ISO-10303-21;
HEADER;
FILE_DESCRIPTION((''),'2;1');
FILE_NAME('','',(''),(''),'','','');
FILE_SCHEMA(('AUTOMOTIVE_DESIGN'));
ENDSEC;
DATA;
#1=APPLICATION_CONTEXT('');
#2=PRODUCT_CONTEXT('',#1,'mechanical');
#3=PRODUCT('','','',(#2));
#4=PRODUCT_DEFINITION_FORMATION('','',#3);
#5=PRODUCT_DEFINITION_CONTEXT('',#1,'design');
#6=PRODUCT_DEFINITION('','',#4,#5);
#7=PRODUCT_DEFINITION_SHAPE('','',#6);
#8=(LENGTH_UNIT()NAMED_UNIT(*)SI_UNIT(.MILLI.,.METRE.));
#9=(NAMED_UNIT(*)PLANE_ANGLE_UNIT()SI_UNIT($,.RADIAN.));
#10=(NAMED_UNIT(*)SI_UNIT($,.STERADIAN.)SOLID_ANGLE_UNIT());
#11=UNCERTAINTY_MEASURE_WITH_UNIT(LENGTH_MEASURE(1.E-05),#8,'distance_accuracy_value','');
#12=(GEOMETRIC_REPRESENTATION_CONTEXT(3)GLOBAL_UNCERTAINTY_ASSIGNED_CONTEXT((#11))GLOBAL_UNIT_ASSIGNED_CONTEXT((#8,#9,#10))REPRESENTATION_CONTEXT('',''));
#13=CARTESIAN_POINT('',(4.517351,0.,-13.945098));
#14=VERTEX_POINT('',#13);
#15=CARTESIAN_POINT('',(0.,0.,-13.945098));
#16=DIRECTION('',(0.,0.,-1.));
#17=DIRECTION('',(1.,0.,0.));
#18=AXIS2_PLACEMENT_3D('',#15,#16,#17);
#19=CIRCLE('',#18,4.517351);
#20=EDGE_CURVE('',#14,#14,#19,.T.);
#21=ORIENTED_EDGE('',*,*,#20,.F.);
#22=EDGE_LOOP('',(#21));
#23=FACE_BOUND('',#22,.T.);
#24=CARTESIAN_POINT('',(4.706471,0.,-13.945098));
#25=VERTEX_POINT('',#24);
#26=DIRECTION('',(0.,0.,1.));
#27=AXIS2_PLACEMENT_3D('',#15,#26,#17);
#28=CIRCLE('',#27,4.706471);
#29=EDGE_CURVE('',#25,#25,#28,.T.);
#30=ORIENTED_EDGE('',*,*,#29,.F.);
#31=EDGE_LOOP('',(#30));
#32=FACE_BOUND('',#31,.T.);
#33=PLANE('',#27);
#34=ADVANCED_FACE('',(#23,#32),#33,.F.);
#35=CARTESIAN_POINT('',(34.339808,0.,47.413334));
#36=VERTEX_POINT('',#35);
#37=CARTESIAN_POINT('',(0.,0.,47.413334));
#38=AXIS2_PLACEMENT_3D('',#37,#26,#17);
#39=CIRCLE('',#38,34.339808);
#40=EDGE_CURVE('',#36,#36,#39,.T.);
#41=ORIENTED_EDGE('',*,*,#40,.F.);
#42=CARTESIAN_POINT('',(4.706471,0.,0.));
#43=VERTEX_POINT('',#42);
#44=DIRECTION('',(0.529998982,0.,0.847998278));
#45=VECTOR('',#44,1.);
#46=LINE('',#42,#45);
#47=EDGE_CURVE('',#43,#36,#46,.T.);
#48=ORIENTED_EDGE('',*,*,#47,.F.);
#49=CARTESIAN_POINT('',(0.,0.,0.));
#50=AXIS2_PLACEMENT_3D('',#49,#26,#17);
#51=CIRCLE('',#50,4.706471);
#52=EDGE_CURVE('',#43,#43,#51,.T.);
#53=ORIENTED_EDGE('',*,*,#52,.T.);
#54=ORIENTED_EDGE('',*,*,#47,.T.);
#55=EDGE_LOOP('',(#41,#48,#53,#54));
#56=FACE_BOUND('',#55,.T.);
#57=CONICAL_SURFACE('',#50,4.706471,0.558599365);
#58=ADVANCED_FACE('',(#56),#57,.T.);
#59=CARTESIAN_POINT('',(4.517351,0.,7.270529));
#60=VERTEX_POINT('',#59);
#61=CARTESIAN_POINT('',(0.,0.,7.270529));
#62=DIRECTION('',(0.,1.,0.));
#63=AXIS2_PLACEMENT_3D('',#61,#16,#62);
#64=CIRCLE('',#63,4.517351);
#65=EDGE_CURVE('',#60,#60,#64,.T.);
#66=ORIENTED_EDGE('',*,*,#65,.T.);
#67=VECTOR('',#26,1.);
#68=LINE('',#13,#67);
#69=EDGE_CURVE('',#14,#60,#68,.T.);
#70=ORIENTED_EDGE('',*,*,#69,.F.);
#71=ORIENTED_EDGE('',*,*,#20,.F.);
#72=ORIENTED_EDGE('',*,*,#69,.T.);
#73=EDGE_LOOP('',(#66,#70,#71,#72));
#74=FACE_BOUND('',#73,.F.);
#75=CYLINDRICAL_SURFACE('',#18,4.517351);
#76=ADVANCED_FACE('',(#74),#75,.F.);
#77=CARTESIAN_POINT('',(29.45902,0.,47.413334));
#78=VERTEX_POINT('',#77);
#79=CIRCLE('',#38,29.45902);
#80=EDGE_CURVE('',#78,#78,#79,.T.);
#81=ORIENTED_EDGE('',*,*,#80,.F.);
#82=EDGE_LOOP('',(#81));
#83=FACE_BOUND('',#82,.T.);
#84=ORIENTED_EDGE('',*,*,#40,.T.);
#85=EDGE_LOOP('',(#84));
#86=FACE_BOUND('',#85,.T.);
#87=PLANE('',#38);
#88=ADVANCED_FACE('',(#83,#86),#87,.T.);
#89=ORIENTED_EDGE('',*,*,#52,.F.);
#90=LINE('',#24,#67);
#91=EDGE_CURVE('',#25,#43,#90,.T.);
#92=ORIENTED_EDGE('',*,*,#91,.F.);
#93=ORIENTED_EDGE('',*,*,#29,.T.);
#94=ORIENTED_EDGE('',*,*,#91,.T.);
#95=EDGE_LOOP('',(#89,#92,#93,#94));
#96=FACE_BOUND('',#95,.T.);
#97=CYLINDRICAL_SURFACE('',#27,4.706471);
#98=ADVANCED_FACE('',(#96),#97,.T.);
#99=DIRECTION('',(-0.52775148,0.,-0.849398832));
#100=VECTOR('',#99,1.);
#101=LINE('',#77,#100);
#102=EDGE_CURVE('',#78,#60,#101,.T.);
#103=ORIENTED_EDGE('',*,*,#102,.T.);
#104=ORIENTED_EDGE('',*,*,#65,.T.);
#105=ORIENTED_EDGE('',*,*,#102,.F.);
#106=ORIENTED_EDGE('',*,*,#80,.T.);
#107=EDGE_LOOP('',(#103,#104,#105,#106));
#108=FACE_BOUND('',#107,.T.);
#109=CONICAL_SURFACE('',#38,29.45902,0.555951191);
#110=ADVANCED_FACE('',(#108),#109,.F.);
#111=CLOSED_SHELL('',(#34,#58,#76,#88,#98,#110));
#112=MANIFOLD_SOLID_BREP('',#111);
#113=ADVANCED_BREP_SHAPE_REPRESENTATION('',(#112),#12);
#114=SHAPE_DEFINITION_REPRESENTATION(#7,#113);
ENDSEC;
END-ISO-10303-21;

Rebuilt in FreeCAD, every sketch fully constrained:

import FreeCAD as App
import Part
import Sketcher
Q = App.Units.Quantity

doc = App.newDocument("Part")
params = doc.addObject("Spreadsheet::Sheet", "Params")
for row, (alias, value) in enumerate([
    ("revolution_angle", "360 deg"),
    ("pocket1_length", "1 in"),
], start=1):
    params.set(f"A{row}", alias)
    params.set(f"B{row}", "=" + value)
    params.setAlias(f"B{row}", alias)

body = doc.addObject("PartDesign::Body", "Body")

sketch1 = body.newObject("Sketcher::SketchObject", "Sketch")
sketch1.AttachmentSupport = (doc.getObject("XZ_Plane"), [""])
sketch1.MapMode = "FlatFace"
sketch1.addGeometry(Part.LineSegment(App.Vector(0, 0, 0), App.Vector(0, -13.9, 0)), False)
sketch1.addGeometry(Part.LineSegment(App.Vector(0, -13.9, 0), App.Vector(4.7, -13.9, 0)), False)
sketch1.addGeometry(Part.LineSegment(App.Vector(4.7, -13.9, 0), App.Vector(4.7, 0, 0)), False)
sketch1.addGeometry(Part.LineSegment(App.Vector(4.7, 0, 0), App.Vector(34.3, 47.4, 0)), False)
sketch1.addGeometry(Part.LineSegment(App.Vector(34.3, 47.4, 0), App.Vector(29.5, 47.4, 0)), False)
sketch1.addGeometry(Part.LineSegment(App.Vector(29.5, 47.4, 0), App.Vector(0, 0, 0)), False)
sketch1.addConstraint(Sketcher.Constraint("Coincident", 0, 2, 1, 1))
sketch1.addConstraint(Sketcher.Constraint("Coincident", 1, 2, 2, 1))
sketch1.addConstraint(Sketcher.Constraint("Coincident", 2, 2, 3, 1))
sketch1.addConstraint(Sketcher.Constraint("Coincident", 3, 2, 4, 1))
sketch1.addConstraint(Sketcher.Constraint("Coincident", 4, 2, 5, 1))
sketch1.addConstraint(Sketcher.Constraint("Coincident", 5, 2, 0, 1))
sketch1.addConstraint(Sketcher.Constraint("Vertical", 0))
sketch1.addConstraint(Sketcher.Constraint("Horizontal", 1))
sketch1.addConstraint(Sketcher.Constraint("Vertical", 2))
sketch1.addConstraint(Sketcher.Constraint("Horizontal", 4))
sketch1.addConstraint(Sketcher.Constraint("Coincident", 5, 2, -1, 1))
sketch1.addConstraint(Sketcher.Constraint("PointOnObject", 2, 2, -1))
sketch1.addConstraint(Sketcher.Constraint("DistanceX", 1, 1, 1, 2, Q("4.706471 mm")))
sketch1.addConstraint(Sketcher.Constraint("Distance", 5, Q("55.819872 mm")))
sketch1.addConstraint(Sketcher.Constraint("DistanceX", 4, 2, 4, 1, Q("4.880788 mm")))
sketch1.addConstraint(Sketcher.Constraint("DistanceY", 0, 2, 0, 1, Q("13.945098 mm")))
sketch1.addConstraint(Sketcher.Constraint("DistanceX", -1, 1, 4, 2, Q("29.45902 mm")))
revolution = body.newObject("PartDesign::Revolution", "Revolution")
revolution.Profile = sketch1
revolution.ReferenceAxis = (sketch1, ["V_Axis"])
revolution.setExpression("Angle", "Params.revolution_angle")

sketch2 = body.newObject("Sketcher::SketchObject", "Sketch001")
sketch2.AttachmentSupport = (doc.getObject("XY_Plane"), [""])
sketch2.MapMode = "FlatFace"
sketch2.AttachmentOffset = App.Placement(App.Vector(0, 0, -13.945098), App.Rotation())
sketch2.addGeometry(Part.Circle(App.Vector(0, 0, 0), App.Vector(0, 0, 1), 4.5), False)
sketch2.addConstraint(Sketcher.Constraint("Coincident", 0, 3, -1, 1))
sketch2.addConstraint(Sketcher.Constraint("Diameter", 0, Q("9.034702 mm")))
pocket1 = body.newObject("PartDesign::Pocket", "Pocket")
pocket1.Profile = sketch2
pocket1.setExpression("Length", "Params.pocket1_length")
pocket1.Reversed = True

doc.recompute()
